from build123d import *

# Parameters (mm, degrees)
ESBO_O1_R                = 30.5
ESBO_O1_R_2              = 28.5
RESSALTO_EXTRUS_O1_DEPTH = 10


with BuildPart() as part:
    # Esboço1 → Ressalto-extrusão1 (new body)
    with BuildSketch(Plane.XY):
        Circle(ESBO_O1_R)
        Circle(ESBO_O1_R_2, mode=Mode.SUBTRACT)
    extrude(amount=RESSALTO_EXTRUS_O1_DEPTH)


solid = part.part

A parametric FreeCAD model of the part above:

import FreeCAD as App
import Part
import Sketcher
from FreeCAD import Vector

doc = App.newDocument("Part")
body = doc.addObject("PartDesign::Body", "Body")

# Sketch on XY plane
sketch1 = body.newObject("Sketcher::SketchObject", "Sketch")
sketch1.AttachmentSupport = (doc.getObject("XY_Plane"), [""])
sketch1.MapMode = "FlatFace"
sketch1.addGeometry([
    Part.Circle(Vector(0, 0, 0), Vector(0, 0, 1), 30.5),
    Part.Circle(Vector(0, 0, 0), Vector(0, 0, 1), 28.5),
], False)
sketch1.addConstraint([
    Sketcher.Constraint("Coincident", 0, 3, -1, 1),
    Sketcher.Constraint("Coincident", 1, 3, -1, 1),
    Sketcher.Constraint("Diameter", 0, 61.0),
    Sketcher.Constraint("Diameter", 1, 57.0),
])
pad1 = body.newObject("PartDesign::Pad", "Pad")
pad1.Profile = sketch1
pad1.Length = 10

doc.recompute()
